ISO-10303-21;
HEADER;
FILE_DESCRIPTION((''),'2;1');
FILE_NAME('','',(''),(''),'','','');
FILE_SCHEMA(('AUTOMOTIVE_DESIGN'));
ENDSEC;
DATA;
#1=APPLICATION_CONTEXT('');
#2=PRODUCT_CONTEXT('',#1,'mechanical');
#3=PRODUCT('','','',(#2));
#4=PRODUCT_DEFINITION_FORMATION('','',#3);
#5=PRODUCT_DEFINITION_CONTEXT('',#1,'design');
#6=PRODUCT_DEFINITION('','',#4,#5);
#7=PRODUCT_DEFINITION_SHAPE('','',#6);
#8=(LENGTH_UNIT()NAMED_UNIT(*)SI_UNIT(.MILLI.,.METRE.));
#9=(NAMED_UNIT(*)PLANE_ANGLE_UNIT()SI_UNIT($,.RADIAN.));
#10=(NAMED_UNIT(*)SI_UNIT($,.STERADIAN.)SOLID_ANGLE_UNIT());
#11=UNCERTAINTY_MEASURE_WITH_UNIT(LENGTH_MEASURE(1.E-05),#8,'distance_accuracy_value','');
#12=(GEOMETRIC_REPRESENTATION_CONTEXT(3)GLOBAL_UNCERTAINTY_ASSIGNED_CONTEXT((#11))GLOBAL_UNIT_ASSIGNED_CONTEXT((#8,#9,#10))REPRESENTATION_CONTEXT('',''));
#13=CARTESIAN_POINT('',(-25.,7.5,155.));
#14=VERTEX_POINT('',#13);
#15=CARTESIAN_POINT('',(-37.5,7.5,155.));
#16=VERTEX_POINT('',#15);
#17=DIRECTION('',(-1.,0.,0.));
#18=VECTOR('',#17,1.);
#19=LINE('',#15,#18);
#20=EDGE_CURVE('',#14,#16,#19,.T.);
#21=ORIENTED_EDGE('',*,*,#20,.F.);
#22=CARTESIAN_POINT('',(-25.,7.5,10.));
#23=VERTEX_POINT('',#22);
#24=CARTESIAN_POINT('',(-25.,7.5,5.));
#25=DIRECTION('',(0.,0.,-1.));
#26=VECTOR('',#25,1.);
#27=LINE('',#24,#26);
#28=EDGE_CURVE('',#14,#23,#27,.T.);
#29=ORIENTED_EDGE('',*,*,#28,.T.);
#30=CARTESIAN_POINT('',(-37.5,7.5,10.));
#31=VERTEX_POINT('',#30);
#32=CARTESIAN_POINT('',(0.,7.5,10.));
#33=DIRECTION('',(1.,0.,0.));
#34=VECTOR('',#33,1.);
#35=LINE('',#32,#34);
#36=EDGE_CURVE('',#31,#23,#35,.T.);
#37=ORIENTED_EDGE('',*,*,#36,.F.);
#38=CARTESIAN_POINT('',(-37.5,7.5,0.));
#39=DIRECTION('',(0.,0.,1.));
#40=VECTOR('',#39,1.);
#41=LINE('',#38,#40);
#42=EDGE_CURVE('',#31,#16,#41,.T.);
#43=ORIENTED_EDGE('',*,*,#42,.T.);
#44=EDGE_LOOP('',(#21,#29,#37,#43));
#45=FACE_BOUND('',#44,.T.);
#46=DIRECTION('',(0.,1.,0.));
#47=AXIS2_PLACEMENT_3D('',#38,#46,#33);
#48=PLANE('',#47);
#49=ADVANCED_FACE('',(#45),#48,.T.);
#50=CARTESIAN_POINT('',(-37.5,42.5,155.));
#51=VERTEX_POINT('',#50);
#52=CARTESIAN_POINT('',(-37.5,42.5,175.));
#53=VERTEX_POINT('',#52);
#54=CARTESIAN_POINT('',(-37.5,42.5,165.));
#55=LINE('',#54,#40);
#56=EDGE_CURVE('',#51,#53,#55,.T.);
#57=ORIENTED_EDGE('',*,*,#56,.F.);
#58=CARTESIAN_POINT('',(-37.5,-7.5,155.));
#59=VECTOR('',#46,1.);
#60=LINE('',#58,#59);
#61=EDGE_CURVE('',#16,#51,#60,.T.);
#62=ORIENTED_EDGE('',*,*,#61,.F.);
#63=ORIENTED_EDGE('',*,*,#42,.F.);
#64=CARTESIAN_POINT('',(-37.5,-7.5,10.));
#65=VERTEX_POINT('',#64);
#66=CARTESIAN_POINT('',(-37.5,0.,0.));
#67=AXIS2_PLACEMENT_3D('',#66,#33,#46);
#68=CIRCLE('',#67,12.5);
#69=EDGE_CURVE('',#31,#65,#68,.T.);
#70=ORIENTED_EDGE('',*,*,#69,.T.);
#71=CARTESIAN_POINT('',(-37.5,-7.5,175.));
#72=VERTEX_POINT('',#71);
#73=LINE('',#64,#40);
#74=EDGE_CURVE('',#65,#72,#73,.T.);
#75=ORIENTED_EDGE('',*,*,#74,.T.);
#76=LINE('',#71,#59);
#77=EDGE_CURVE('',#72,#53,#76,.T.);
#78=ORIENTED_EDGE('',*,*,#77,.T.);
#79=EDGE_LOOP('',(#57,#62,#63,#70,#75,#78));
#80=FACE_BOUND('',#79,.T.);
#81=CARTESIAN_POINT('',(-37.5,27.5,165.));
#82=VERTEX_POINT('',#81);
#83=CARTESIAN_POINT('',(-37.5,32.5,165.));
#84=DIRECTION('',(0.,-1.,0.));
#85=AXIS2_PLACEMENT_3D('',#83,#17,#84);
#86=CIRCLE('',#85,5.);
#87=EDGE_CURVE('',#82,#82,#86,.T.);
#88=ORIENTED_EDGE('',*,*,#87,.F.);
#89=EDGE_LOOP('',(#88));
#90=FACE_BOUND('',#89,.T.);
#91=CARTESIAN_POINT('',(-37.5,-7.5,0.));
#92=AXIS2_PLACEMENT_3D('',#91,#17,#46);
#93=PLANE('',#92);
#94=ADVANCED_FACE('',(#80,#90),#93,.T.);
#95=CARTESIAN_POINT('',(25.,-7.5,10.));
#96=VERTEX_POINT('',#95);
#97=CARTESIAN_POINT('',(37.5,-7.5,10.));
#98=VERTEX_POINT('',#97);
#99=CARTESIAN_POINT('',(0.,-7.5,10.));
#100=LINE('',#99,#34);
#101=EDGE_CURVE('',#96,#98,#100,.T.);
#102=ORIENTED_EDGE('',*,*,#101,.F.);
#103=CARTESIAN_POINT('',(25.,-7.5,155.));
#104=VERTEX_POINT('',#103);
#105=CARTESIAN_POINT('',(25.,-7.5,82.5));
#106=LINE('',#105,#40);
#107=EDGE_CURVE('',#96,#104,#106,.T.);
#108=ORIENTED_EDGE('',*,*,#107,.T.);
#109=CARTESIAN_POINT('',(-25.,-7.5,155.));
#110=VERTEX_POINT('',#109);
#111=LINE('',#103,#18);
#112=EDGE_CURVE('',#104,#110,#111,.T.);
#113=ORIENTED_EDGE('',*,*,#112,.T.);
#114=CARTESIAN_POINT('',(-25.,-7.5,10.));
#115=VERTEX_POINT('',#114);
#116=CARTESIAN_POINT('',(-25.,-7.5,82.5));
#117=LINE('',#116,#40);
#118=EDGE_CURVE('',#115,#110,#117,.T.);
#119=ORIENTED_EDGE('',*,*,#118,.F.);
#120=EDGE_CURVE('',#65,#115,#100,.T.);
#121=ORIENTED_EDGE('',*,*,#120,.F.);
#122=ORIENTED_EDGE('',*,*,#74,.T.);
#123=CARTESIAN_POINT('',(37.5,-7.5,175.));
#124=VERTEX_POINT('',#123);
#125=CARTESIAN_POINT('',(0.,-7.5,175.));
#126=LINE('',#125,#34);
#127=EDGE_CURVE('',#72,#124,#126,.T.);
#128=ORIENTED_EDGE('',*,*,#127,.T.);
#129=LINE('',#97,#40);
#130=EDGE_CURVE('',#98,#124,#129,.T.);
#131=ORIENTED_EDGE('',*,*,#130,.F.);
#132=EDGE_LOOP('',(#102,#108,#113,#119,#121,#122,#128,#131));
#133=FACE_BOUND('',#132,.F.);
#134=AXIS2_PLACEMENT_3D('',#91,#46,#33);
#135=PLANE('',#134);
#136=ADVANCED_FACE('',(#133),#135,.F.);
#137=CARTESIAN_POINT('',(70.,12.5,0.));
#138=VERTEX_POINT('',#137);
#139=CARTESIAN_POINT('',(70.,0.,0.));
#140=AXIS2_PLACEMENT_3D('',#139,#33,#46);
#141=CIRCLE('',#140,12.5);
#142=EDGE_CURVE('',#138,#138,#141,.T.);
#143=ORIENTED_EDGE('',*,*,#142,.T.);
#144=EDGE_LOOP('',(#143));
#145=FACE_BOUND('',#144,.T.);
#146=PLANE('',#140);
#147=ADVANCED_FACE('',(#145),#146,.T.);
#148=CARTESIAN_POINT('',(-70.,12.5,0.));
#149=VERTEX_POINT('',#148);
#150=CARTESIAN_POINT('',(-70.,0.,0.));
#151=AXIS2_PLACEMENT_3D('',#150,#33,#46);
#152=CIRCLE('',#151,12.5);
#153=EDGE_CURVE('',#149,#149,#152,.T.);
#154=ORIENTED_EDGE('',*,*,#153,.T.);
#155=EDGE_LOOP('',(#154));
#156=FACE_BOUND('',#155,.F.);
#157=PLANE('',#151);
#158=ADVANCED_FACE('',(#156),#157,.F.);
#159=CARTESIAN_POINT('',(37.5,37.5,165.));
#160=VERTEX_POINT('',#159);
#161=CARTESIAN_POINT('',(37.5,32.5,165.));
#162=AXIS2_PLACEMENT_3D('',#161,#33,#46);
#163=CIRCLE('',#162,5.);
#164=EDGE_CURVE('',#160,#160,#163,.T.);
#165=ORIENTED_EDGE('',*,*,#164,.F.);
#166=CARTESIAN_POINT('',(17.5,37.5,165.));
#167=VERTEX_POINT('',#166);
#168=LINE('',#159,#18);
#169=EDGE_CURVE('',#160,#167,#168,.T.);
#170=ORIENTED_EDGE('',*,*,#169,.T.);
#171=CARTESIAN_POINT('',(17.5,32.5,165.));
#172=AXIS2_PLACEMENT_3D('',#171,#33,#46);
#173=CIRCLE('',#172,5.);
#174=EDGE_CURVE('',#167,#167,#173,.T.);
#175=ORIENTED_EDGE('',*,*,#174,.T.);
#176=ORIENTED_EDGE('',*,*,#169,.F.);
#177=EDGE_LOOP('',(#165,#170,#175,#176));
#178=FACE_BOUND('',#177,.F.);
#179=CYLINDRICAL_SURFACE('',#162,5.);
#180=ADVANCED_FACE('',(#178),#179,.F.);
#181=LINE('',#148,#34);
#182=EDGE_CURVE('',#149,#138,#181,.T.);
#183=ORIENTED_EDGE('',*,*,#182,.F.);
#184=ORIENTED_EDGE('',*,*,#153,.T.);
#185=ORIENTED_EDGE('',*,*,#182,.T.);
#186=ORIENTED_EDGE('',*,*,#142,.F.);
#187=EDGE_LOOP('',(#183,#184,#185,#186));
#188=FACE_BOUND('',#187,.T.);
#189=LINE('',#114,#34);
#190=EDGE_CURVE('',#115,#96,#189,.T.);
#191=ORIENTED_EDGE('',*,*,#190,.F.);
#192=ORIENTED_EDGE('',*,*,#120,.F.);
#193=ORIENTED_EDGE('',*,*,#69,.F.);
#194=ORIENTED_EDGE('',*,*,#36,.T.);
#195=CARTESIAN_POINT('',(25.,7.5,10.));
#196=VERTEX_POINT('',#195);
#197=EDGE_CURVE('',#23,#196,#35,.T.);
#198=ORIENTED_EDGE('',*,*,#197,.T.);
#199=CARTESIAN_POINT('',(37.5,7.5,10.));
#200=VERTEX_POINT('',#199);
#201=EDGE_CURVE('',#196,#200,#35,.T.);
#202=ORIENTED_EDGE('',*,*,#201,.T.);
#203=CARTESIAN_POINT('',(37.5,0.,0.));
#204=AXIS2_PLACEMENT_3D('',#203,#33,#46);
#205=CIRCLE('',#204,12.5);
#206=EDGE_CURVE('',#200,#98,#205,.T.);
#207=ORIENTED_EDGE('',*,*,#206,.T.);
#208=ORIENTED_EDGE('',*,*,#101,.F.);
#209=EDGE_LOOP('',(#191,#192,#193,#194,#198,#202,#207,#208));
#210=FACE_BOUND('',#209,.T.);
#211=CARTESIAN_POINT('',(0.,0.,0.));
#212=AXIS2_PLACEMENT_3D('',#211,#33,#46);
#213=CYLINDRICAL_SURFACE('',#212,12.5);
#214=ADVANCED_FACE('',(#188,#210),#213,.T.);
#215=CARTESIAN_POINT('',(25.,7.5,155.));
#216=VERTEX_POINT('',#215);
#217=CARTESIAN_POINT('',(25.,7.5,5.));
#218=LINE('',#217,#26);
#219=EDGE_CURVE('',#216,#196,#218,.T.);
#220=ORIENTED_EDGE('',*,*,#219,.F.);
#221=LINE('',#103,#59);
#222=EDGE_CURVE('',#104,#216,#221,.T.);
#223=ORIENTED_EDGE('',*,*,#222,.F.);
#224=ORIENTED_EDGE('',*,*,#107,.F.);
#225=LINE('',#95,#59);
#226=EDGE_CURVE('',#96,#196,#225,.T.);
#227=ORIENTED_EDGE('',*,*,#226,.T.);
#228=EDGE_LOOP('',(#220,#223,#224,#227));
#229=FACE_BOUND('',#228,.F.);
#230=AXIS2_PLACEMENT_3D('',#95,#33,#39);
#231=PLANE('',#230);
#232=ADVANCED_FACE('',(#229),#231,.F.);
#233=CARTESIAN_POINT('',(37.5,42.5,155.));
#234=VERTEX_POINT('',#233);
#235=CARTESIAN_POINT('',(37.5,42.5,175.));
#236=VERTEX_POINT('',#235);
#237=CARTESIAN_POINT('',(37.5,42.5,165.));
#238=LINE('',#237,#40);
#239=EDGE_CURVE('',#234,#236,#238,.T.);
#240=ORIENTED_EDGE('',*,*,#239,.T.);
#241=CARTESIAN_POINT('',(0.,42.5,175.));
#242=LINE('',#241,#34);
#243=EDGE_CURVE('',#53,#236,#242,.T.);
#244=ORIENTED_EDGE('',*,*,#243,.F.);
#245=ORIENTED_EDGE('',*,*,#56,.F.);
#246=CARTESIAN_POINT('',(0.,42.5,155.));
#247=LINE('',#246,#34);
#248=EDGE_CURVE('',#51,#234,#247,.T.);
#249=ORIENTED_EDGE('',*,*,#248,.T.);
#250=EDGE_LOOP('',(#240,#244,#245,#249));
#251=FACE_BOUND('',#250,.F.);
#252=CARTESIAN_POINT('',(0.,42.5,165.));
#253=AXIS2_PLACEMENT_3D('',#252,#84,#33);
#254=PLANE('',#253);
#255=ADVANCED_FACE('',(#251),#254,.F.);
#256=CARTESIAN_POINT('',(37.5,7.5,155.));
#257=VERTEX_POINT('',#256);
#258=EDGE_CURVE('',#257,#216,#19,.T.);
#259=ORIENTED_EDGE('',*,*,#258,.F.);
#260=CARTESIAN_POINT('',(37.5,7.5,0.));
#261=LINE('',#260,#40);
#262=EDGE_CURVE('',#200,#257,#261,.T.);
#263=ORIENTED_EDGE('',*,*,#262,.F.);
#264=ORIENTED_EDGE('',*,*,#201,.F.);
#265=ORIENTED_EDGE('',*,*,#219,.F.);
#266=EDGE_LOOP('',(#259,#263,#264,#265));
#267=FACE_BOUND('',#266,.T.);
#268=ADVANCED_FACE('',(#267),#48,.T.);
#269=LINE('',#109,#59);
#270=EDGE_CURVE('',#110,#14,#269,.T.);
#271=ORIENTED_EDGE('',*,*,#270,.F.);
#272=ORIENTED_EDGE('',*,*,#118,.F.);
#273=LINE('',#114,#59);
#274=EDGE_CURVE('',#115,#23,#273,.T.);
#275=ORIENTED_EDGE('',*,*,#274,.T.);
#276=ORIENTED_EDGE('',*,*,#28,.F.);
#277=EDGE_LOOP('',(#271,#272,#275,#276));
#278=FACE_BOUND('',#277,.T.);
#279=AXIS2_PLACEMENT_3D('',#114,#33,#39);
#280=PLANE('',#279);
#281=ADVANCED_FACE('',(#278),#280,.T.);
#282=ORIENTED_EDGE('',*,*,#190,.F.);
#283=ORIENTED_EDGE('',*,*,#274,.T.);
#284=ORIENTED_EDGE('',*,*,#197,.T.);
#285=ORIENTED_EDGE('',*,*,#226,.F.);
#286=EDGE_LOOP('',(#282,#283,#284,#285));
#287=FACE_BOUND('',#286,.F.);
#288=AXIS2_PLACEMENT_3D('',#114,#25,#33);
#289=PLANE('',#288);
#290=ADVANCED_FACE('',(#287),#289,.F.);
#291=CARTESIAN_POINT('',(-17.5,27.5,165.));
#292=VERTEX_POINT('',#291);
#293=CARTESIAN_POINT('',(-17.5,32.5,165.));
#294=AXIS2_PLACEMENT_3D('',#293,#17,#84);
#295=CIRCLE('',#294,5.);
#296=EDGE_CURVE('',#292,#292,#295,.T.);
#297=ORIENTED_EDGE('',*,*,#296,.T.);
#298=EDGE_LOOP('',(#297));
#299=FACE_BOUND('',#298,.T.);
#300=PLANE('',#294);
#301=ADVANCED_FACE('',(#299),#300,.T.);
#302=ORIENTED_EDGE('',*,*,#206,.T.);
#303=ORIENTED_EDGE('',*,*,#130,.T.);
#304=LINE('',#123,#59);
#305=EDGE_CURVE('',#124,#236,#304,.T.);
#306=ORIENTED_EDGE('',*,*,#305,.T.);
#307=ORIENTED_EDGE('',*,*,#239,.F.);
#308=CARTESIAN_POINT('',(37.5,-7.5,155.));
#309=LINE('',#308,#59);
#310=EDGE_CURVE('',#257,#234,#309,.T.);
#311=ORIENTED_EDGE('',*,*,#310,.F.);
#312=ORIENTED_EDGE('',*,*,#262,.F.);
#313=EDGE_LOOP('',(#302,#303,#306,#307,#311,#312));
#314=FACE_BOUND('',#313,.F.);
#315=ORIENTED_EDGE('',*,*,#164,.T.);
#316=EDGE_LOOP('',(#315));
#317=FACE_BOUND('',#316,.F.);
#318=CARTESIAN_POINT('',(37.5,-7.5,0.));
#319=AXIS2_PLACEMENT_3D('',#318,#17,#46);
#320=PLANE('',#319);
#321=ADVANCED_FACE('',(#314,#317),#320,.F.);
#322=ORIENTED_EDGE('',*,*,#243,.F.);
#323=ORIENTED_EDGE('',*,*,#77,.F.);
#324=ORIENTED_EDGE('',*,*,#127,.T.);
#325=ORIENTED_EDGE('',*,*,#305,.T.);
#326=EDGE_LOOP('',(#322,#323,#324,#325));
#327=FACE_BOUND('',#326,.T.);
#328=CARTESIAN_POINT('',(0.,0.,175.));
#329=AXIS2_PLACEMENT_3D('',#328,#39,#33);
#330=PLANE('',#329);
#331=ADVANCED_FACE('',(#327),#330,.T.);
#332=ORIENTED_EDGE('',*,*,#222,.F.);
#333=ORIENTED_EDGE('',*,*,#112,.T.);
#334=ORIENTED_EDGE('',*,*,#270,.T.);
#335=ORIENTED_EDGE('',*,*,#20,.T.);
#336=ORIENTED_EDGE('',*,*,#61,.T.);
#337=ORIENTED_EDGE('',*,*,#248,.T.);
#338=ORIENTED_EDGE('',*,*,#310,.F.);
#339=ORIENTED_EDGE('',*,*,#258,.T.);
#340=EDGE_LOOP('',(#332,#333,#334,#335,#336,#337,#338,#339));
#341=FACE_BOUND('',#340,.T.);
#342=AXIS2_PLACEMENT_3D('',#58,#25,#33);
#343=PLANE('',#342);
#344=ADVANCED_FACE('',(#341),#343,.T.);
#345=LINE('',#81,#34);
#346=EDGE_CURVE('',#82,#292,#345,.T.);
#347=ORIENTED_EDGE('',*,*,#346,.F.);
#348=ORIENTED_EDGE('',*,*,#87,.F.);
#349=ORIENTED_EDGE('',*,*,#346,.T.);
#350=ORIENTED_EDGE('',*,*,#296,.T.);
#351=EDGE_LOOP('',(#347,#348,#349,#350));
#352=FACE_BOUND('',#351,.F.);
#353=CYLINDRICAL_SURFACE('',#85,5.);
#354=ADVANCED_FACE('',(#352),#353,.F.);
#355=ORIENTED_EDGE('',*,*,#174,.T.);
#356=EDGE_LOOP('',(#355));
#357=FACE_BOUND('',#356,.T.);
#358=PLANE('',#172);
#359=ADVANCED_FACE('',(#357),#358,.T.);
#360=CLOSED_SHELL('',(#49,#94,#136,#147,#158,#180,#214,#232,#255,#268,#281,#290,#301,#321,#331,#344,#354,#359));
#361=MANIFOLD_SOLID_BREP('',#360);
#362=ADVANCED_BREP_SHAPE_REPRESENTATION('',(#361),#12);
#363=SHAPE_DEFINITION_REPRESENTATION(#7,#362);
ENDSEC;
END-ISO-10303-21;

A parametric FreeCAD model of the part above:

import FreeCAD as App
import Part
import Sketcher
from FreeCAD import Vector
Q = App.Units.Quantity

doc = App.newDocument("Part")
params = doc.addObject("Spreadsheet::Sheet", "Params")
for row, (alias, value) in enumerate([
    ("sketch1_diameter", "25 mm"),
    ("pad1_length", "140 mm"),
    ("sketch2_width", "75 mm"),
    ("sketch2_height", "15 mm"),
    ("pad2_length", "175 mm"),
    ("sketch3_width", "50 mm"),
    ("sketch3_height", "145 mm"),
    ("pocket1_length", "500 mm"),
    ("sketch4_width", "75 mm"),
    ("sketch4_height", "20 mm"),
    ("pad3_length", "50 mm"),
    ("sketch5_diameter", "10 mm"),
    ("pocket2_length", "20 mm"),
    ("sketch6_diameter", "10 mm"),
    ("pocket3_length", "20 mm"),
], start=1):
    params.set(f"A{row}", alias)
    params.set(f"B{row}", "=" + value)
    params.setAlias(f"B{row}", alias)

body = doc.addObject("PartDesign::Body", "Body")

# Sketch on YZ plane
sketch1 = doc.addObject("Sketcher::SketchObject", "Sketch")
body.addObject(sketch1)
sketch1.AttachmentSupport = (doc.YZ_Plane, [""])
sketch1.MapMode = "FlatFace"
sketch1.addGeometry(Part.Circle(Vector(0, 0, 0), Vector(0, 0, 1), 12.5), False)
sketch1.addConstraint(Sketcher.Constraint("Coincident", 0, 3, -1, 1))
sketch1.addConstraint(Sketcher.Constraint("Diameter", 0, Q("25 mm")))
sketch1.setExpression("Constraints[1]", "Params.sketch1_diameter")
pad1 = doc.addObject("PartDesign::Pad", "Pad")
body.addObject(pad1)
pad1.Profile = sketch1
pad1.setExpression("Length", "Params.pad1_length")
pad1.Midplane = True

# Sketch on XY plane
sketch2 = doc.addObject("Sketcher::SketchObject", "Sketch001")
body.addObject(sketch2)
sketch2.AttachmentSupport = (doc.XY_Plane, [""])
sketch2.MapMode = "FlatFace"
sketch2.addGeometry(Part.LineSegment(Vector(-37.5, 7.5, 0), Vector(-37.5, -7.5, 0)), False)
sketch2.addGeometry(Part.LineSegment(Vector(-37.5, -7.5, 0), Vector(37.5, -7.5, 0)), False)
sketch2.addGeometry(Part.LineSegment(Vector(37.5, -7.5, 0), Vector(37.5, 7.5, 0)), False)
sketch2.addGeometry(Part.LineSegment(Vector(37.5, 7.5, 0), Vector(-37.5, 7.5, 0)), False)
sketch2.addConstraint(Sketcher.Constraint("Coincident", 0, 2, 1, 1))
sketch2.addConstraint(Sketcher.Constraint("Coincident", 1, 2, 2, 1))
sketch2.addConstraint(Sketcher.Constraint("Coincident", 2, 2, 3, 1))
sketch2.addConstraint(Sketcher.Constraint("Coincident", 3, 2, 0, 1))
sketch2.addConstraint(Sketcher.Constraint("Vertical", 0))
sketch2.addConstraint(Sketcher.Constraint("Horizontal", 1))
sketch2.addConstraint(Sketcher.Constraint("Vertical", 2))
sketch2.addConstraint(Sketcher.Constraint("Horizontal", 3))
sketch2.addConstraint(Sketcher.Constraint("Symmetric", 0, 2, 2, 2, -1, 1))
sketch2.addConstraint(Sketcher.Constraint("DistanceX", 1, 1, 1, 2, Q("75 mm")))
sketch2.addConstraint(Sketcher.Constraint("DistanceY", 0, 2, 0, 1, Q("15 mm")))
sketch2.setExpression("Constraints[9]", "Params.sketch2_width")
sketch2.setExpression("Constraints[10]", "Params.sketch2_height")
pad2 = doc.addObject("PartDesign::Pad", "Pad001")
body.addObject(pad2)
pad2.Profile = sketch2
pad2.setExpression("Length", "Params.pad2_length")

# Sketch on XZ plane
sketch3 = doc.addObject("Sketcher::SketchObject", "Sketch002")
body.addObject(sketch3)
sketch3.AttachmentSupport = (doc.XZ_Plane, [""])
sketch3.MapMode = "FlatFace"
sketch3.AttachmentOffset = App.Placement(Vector(0, 0, 7.5), App.Rotation())
sketch3.addGeometry(Part.LineSegment(Vector(-25, 155, 0), Vector(-25, 10, 0)), False)
sketch3.addGeometry(Part.LineSegment(Vector(-25, 10, 0), Vector(25, 10, 0)), False)
sketch3.addGeometry(Part.LineSegment(Vector(25, 10, 0), Vector(25, 155, 0)), False)
sketch3.addGeometry(Part.LineSegment(Vector(25, 155, 0), Vector(-25, 155, 0)), False)
sketch3.addConstraint(Sketcher.Constraint("Coincident", 0, 2, 1, 1))
sketch3.addConstraint(Sketcher.Constraint("Coincident", 1, 2, 2, 1))
sketch3.addConstraint(Sketcher.Constraint("Coincident", 2, 2, 3, 1))
sketch3.addConstraint(Sketcher.Constraint("Coincident", 3, 2, 0, 1))
sketch3.addConstraint(Sketcher.Constraint("Vertical", 0))
sketch3.addConstraint(Sketcher.Constraint("Horizontal", 1))
sketch3.addConstraint(Sketcher.Constraint("Vertical", 2))
sketch3.addConstraint(Sketcher.Constraint("Horizontal", 3))
sketch3.addConstraint(Sketcher.Constraint("DistanceX", 1, 1, 1, 2, Q("50 mm")))
sketch3.addConstraint(Sketcher.Constraint("DistanceY", 0, 2, 0, 1, Q("145 mm")))
sketch3.addConstraint(Sketcher.Constraint("DistanceX", 0, 2, -1, 1, Q("25 mm")))
sketch3.addConstraint(Sketcher.Constraint("DistanceY", -1, 1, 0, 2, Q("10 mm")))
sketch3.setExpression("Constraints[8]", "Params.sketch3_width")
sketch3.setExpression("Constraints[9]", "Params.sketch3_height")
pocket1 = doc.addObject("PartDesign::Pocket", "Pocket")
body.addObject(pocket1)
pocket1.Profile = sketch3
pocket1.setExpression("Length", "Params.pocket1_length")

# Sketch on XZ plane
sketch4 = doc.addObject("Sketcher::SketchObject", "Sketch003")
body.addObject(sketch4)
sketch4.AttachmentSupport = (doc.XZ_Plane, [""])
sketch4.MapMode = "FlatFace"
sketch4.AttachmentOffset = App.Placement(Vector(0, 0, 7.5), App.Rotation())
sketch4.addGeometry(Part.LineSegment(Vector(-37.5, 175, 0), Vector(-37.5, 155, 0)), False)
sketch4.addGeometry(Part.LineSegment(Vector(-37.5, 155, 0), Vector(37.5, 155, 0)), False)
sketch4.addGeometry(Part.LineSegment(Vector(37.5, 155, 0), Vector(37.5, 175, 0)), False)
sketch4.addGeometry(Part.LineSegment(Vector(37.5, 175, 0), Vector(-37.5, 175, 0)), False)
sketch4.addConstraint(Sketcher.Constraint("Coincident", 0, 2, 1, 1))
sketch4.addConstraint(Sketcher.Constraint("Coincident", 1, 2, 2, 1))
sketch4.addConstraint(Sketcher.Constraint("Coincident", 2, 2, 3, 1))
sketch4.addConstraint(Sketcher.Constraint("Coincident", 3, 2, 0, 1))
sketch4.addConstraint(Sketcher.Constraint("Vertical", 0))
sketch4.addConstraint(Sketcher.Constraint("Horizontal", 1))
sketch4.addConstraint(Sketcher.Constraint("Vertical", 2))
sketch4.addConstraint(Sketcher.Constraint("Horizontal", 3))
sketch4.addConstraint(Sketcher.Constraint("DistanceX", 1, 1, 1, 2, Q("75 mm")))
sketch4.addConstraint(Sketcher.Constraint("DistanceY", 0, 2, 0, 1, Q("20 mm")))
sketch4.addConstraint(Sketcher.Constraint("DistanceY", -1, 1, 0, 2, Q("155 mm")))
sketch4.addConstraint(Sketcher.Constraint("DistanceX", 0, 2, -1, 1, Q("37.5 mm")))
sketch4.setExpression("Constraints[8]", "Params.sketch4_width")
sketch4.setExpression("Constraints[9]", "Params.sketch4_height")
pad3 = doc.addObject("PartDesign::Pad", "Pad002")
body.addObject(pad3)
pad3.Profile = sketch4
pad3.setExpression("Length", "Params.pad3_length")
pad3.Reversed = True

# Sketch on YZ plane
sketch5 = doc.addObject("Sketcher::SketchObject", "Sketch004")
body.addObject(sketch5)
sketch5.AttachmentSupport = (doc.YZ_Plane, [""])
sketch5.MapMode = "FlatFace"
sketch5.AttachmentOffset = App.Placement(Vector(0, 0, -37.5), App.Rotation())
sketch5.addGeometry(Part.Circle(Vector(32.5, 165, 0), Vector(0, 0, 1), 5), False)
sketch5.addConstraint(Sketcher.Constraint("Diameter", 0, Q("10 mm")))
sketch5.addConstraint(Sketcher.Constraint("DistanceY", -1, 1, 0, 3, Q("165 mm")))
sketch5.addConstraint(Sketcher.Constraint("DistanceX", -1, 1, 0, 3, Q("32.5 mm")))
sketch5.setExpression("Constraints[0]", "Params.sketch5_diameter")
pocket2 = doc.addObject("PartDesign::Pocket", "Pocket001")
body.addObject(pocket2)
pocket2.Profile = sketch5
pocket2.setExpression("Length", "Params.pocket2_length")
pocket2.Reversed = True

# Sketch on YZ plane
sketch6 = doc.addObject("Sketcher::SketchObject", "Sketch005")
body.addObject(sketch6)
sketch6.AttachmentSupport = (doc.YZ_Plane, [""])
sketch6.MapMode = "FlatFace"
sketch6.AttachmentOffset = App.Placement(Vector(0, 0, 37.5), App.Rotation())
sketch6.addGeometry(Part.Circle(Vector(32.5, 165, 0), Vector(0, 0, 1), 5), False)
sketch6.addConstraint(Sketcher.Constraint("Diameter", 0, Q("10 mm")))
sketch6.addConstraint(Sketcher.Constraint("DistanceY", -1, 1, 0, 3, Q("165 mm")))
sketch6.addConstraint(Sketcher.Constraint("DistanceX", -1, 1, 0, 3, Q("32.5 mm")))
sketch6.setExpression("Constraints[0]", "Params.sketch6_diameter")
pocket3 = doc.addObject("PartDesign::Pocket", "Pocket002")
body.addObject(pocket3)
pocket3.Profile = sketch6
pocket3.setExpression("Length", "Params.pocket3_length")

doc.recompute()
